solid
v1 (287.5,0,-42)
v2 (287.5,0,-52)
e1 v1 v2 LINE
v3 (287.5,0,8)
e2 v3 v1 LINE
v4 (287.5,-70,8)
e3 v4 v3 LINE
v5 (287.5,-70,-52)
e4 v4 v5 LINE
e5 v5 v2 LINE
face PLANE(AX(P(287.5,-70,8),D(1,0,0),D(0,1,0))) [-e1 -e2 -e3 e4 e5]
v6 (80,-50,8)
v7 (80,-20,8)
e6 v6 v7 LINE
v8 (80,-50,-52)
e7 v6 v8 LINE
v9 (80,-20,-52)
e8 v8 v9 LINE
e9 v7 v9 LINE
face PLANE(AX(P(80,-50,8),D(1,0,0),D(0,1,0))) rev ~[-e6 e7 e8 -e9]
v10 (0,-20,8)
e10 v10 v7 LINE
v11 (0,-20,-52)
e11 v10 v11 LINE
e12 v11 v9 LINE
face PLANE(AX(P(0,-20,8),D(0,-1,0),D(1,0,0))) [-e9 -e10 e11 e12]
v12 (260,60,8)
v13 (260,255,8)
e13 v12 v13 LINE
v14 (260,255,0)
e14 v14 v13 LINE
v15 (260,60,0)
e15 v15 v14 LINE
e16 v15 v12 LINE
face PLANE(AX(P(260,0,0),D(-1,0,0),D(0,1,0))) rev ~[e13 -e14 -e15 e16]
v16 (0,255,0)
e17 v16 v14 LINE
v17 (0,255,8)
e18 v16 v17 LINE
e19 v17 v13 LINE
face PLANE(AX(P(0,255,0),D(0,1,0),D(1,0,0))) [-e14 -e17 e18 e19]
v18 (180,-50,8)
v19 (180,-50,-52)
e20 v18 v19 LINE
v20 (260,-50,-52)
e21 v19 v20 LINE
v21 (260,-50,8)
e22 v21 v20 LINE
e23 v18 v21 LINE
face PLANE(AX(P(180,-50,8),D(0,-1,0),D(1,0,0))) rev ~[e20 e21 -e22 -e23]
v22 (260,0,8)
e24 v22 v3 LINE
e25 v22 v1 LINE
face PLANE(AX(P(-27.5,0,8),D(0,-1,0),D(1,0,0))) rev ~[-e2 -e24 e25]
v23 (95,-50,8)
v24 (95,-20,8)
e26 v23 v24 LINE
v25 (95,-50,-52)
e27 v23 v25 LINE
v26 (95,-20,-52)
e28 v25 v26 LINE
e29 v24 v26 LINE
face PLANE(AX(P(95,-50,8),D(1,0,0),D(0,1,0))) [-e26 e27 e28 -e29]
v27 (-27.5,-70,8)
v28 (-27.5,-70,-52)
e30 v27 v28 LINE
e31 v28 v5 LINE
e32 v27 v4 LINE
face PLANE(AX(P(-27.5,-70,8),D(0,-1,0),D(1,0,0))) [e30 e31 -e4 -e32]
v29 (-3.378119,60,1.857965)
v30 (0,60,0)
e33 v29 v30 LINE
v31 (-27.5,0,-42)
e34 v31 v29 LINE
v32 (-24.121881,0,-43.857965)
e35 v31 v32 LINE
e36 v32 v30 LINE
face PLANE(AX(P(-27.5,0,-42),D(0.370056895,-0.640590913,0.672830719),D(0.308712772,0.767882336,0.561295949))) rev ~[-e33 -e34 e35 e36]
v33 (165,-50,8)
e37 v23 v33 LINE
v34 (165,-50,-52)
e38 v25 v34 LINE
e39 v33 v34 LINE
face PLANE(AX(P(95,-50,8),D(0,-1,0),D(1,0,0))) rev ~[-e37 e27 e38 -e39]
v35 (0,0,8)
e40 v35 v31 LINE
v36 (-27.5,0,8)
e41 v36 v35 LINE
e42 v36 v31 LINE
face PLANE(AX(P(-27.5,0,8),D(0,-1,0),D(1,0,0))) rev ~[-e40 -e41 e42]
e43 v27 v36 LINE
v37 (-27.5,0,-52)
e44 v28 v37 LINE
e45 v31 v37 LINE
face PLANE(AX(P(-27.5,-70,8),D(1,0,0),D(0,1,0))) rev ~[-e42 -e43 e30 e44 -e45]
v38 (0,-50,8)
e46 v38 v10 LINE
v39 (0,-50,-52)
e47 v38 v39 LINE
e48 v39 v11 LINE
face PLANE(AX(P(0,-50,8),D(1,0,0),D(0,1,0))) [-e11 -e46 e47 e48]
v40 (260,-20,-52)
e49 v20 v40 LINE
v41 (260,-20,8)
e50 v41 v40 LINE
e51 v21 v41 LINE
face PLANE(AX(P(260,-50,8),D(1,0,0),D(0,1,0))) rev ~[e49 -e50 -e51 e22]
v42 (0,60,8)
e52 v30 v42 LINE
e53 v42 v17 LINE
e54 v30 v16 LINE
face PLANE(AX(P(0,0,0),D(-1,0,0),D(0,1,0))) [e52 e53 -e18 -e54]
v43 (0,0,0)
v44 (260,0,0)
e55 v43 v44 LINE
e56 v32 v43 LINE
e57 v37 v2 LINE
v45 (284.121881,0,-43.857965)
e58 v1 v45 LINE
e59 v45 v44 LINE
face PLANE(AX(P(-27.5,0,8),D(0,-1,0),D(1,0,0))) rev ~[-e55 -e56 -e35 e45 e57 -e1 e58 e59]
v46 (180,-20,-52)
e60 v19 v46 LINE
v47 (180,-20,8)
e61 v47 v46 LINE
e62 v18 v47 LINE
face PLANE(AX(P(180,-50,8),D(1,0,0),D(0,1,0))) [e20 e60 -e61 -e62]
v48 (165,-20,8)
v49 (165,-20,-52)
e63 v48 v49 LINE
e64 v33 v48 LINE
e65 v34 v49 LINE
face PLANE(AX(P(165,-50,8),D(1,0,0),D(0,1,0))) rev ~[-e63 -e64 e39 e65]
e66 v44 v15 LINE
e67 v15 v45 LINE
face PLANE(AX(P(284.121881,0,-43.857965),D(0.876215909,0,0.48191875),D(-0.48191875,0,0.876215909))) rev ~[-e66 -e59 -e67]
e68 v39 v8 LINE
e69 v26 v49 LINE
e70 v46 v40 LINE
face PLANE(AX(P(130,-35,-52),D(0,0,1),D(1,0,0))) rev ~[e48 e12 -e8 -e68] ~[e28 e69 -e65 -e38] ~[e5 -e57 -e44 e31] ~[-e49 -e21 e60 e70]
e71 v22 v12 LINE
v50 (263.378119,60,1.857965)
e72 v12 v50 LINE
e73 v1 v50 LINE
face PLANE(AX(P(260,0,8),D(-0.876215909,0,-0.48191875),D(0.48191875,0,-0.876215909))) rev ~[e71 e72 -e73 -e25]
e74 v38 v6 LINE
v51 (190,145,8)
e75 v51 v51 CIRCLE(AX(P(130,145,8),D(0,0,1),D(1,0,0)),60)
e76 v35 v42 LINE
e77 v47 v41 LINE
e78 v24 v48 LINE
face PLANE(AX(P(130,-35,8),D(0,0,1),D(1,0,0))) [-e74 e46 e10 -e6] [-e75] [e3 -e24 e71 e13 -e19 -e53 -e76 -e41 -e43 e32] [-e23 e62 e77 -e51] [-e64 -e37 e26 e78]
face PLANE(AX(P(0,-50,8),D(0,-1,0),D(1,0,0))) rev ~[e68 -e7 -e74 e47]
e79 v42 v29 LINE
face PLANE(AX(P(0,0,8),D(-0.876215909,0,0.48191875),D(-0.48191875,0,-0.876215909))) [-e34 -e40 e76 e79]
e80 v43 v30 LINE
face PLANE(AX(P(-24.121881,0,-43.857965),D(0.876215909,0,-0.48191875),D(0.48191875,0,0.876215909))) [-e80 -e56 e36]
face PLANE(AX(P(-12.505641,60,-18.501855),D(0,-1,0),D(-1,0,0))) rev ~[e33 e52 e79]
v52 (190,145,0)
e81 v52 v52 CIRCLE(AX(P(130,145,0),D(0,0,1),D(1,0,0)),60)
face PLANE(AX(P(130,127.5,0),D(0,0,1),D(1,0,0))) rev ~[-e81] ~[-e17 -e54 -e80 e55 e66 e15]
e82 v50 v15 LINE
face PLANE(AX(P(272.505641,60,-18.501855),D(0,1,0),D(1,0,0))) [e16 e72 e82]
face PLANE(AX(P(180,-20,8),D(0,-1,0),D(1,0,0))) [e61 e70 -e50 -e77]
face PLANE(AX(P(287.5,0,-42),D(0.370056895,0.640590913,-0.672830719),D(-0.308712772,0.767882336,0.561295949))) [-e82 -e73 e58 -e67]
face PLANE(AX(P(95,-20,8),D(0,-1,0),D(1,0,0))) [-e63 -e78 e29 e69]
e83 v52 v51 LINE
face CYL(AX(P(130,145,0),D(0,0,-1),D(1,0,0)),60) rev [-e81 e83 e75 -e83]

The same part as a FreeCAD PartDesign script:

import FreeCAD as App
import Part
import Sketcher

doc = App.newDocument("Part")
body = doc.addObject("PartDesign::Body", "Body")

sketch1 = body.newObject("Sketcher::SketchObject", "Sketch")
sketch1.AttachmentSupport = (doc.getObject("XY_Plane"), [""])
sketch1.MapMode = "FlatFace"
sketch1.addGeometry([
    Part.LineSegment(App.Vector(0, 255, 0), App.Vector(0, 0, 0)),
    Part.LineSegment(App.Vector(0, 0, 0), App.Vector(260, 0, 0)),
    Part.LineSegment(App.Vector(260, 0, 0), App.Vector(260, 255, 0)),
    Part.LineSegment(App.Vector(260, 255, 0), App.Vector(0, 255, 0)),
    Part.Circle(App.Vector(130, 145, 0), App.Vector(0, 0, 1), 60),
], False)
sketch1.addConstraint([
    Sketcher.Constraint("Coincident", 0, 2, 1, 1),
    Sketcher.Constraint("Coincident", 1, 2, 2, 1),
    Sketcher.Constraint("Coincident", 2, 2, 3, 1),
    Sketcher.Constraint("Coincident", 3, 2, 0, 1),
    Sketcher.Constraint("Vertical", 0),
    Sketcher.Constraint("Horizontal", 1),
    Sketcher.Constraint("Vertical", 2),
    Sketcher.Constraint("Horizontal", 3),
    Sketcher.Constraint("Coincident", 0, 2, -1, 1),
    Sketcher.Constraint("Diameter", 4, 120.0),
    Sketcher.Constraint("DistanceX", 1, 1, 1, 2, 260.0),
    Sketcher.Constraint("DistanceY", 0, 2, 0, 1, 255.0),
    Sketcher.Constraint("DistanceX", -1, 1, 4, 3, 130.0),
    Sketcher.Constraint("DistanceY", -1, 1, 4, 3, 145.0),
])
pad1 = body.newObject("PartDesign::Pad", "Pad")
pad1.Profile = sketch1
pad1.Length = 8

sketch2 = body.newObject("Sketcher::SketchObject", "Sketch001")
sketch2.AttachmentSupport = (doc.getObject("XY_Plane"), [""])
sketch2.MapMode = "FlatFace"
sketch2.AttachmentOffset = App.Placement(App.Vector(0, 0, 8), App.Rotation())
sketch2.addGeometry([
    Part.LineSegment(App.Vector(-28, 0, 0), App.Vector(-28, -70, 0)),
    Part.LineSegment(App.Vector(-28, -70, 0), App.Vector(288, -70, 0)),
    Part.LineSegment(App.Vector(288, -70, 0), App.Vector(288, 0, 0)),
    Part.LineSegment(App.Vector(288, 0, 0), App.Vector(-28, 0, 0)),
    Part.LineSegment(App.Vector(80, -50, 0), App.Vector(0, -50, 0)),
    Part.LineSegment(App.Vector(0, -50, 0), App.Vector(0, -20, 0)),
    Part.LineSegment(App.Vector(0, -20, 0), App.Vector(80, -20, 0)),
    Part.LineSegment(App.Vector(80, -20, 0), App.Vector(80, -50, 0)),
    Part.LineSegment(App.Vector(165, -50, 0), App.Vector(95, -50, 0)),
    Part.LineSegment(App.Vector(95, -50, 0), App.Vector(95, -20, 0)),
    Part.LineSegment(App.Vector(95, -20, 0), App.Vector(165, -20, 0)),
    Part.LineSegment(App.Vector(165, -20, 0), App.Vector(165, -50, 0)),
    Part.LineSegment(App.Vector(260, -50, 0), App.Vector(180, -50, 0)),
    Part.LineSegment(App.Vector(180, -50, 0), App.Vector(180, -20, 0)),
    Part.LineSegment(App.Vector(180, -20, 0), App.Vector(260, -20, 0)),
    Part.LineSegment(App.Vector(260, -20, 0), App.Vector(260, -50, 0)),
], False)
sketch2.addConstraint([
    Sketcher.Constraint("Coincident", 0, 2, 1, 1),
    Sketcher.Constraint("Coincident", 1, 2, 2, 1),
    Sketcher.Constraint("Coincident", 2, 2, 3, 1),
    Sketcher.Constraint("Coincident", 3, 2, 0, 1),
    Sketcher.Constraint("Coincident", 4, 2, 5, 1),
    Sketcher.Constraint("Coincident", 5, 2, 6, 1),
    Sketcher.Constraint("Coincident", 6, 2, 7, 1),
    Sketcher.Constraint("Coincident", 7, 2, 4, 1),
    Sketcher.Constraint("Coincident", 8, 2, 9, 1),
    Sketcher.Constraint("Coincident", 9, 2, 10, 1),
    Sketcher.Constraint("Coincident", 10, 2, 11, 1),
    Sketcher.Constraint("Coincident", 11, 2, 8, 1),
    Sketcher.Constraint("Coincident", 12, 2, 13, 1),
    Sketcher.Constraint("Coincident", 13, 2, 14, 1),
    Sketcher.Constraint("Coincident", 14, 2, 15, 1),
    Sketcher.Constraint("Coincident", 15, 2, 12, 1),
    Sketcher.Constraint("Vertical", 0),
    Sketcher.Constraint("Horizontal", 1),
    Sketcher.Constraint("Vertical", 2),
    Sketcher.Constraint("Horizontal", 3),
    Sketcher.Constraint("Horizontal", 4),
    Sketcher.Constraint("Vertical", 5),
    Sketcher.Constraint("Horizontal", 6),
    Sketcher.Constraint("Vertical", 7),
    Sketcher.Constraint("Horizontal", 8),
    Sketcher.Constraint("Vertical", 9),
    Sketcher.Constraint("Horizontal", 10),
    Sketcher.Constraint("Vertical", 11),
    Sketcher.Constraint("Horizontal", 12),
    Sketcher.Constraint("Vertical", 13),
    Sketcher.Constraint("Horizontal", 14),
    Sketcher.Constraint("Vertical", 15),
    Sketcher.Constraint("PointOnObject", 2, 2, -1),
    Sketcher.Constraint("PointOnObject", 4, 2, -2),
    Sketcher.Constraint("Horizontal", 7, 2, 8, 2),
    Sketcher.Constraint("Horizontal", 6, 2, 9, 2),
    Sketcher.Constraint("Horizontal", 11, 2, 12, 2),
    Sketcher.Constraint("Horizontal", 10, 2, 13, 2),
    Sketcher.Constraint("Equal", 6, 12),
    Sketcher.Constraint("Equal", 10, 0),
    Sketcher.Constraint("DistanceX", 1, 1, 1, 2, 315.0),
    Sketcher.Constraint("DistanceX", 4, 2, 4, 1, 80.0),
    Sketcher.Constraint("DistanceX", 8, 2, 8, 1, 70.0),
    Sketcher.Constraint("DistanceY", 5, 1, 5, 2, 30.0),
    Sketcher.Constraint("DistanceY", 4, 2, -1, 1, 50.0),
    Sketcher.Constraint("DistanceX", -1, 1, 8, 2, 95.0),
    Sketcher.Constraint("DistanceX", -1, 1, 12, 2, 180.0),
    Sketcher.Constraint("DistanceX", 0, 2, -1, 1, 27.5),
])
pad2 = body.newObject("PartDesign::Pad", "Pad001")
pad2.Profile = sketch2
pad2.Length = 60
pad2.Reversed = True

sketch3 = body.newObject("Sketcher::SketchObject", "Sketch002")
sketch3.AttachmentSupport = (doc.getObject("XZ_Plane"), [""])
sketch3.MapMode = "FlatFace"
sketch3.addGeometry([
    Part.LineSegment(App.Vector(260, 8, 0), App.Vector(287.5, -42, 0)),
    Part.LineSegment(App.Vector(287.5, -42, 0), App.Vector(284.1, -43.9, 0)),
    Part.LineSegment(App.Vector(284.1, -43.9, 0), App.Vector(260, 0, 0)),
    Part.LineSegment(App.Vector(260, 0, 0), App.Vector(260, 8, 0)),
    Part.LineSegment(App.Vector(-27.5, -42, 0), App.Vector(0, 8, 0)),
    Part.LineSegment(App.Vector(0, 8, 0), App.Vector(0, 0, 0)),
    Part.LineSegment(App.Vector(0, 0, 0), App.Vector(-24.1, -43.9, 0)),
    Part.LineSegment(App.Vector(-24.1, -43.9, 0), App.Vector(-27.5, -42, 0)),
], False)
sketch3.addConstraint([
    Sketcher.Constraint("Coincident", 0, 2, 1, 1),
    Sketcher.Constraint("Coincident", 1, 2, 2, 1),
    Sketcher.Constraint("Coincident", 2, 2, 3, 1),
    Sketcher.Constraint("Coincident", 3, 2, 0, 1),
    Sketcher.Constraint("Coincident", 4, 2, 5, 1),
    Sketcher.Constraint("Coincident", 5, 2, 6, 1),
    Sketcher.Constraint("Coincident", 6, 2, 7, 1),
    Sketcher.Constraint("Coincident", 7, 2, 4, 1),
    Sketcher.Constraint("Vertical", 3),
    Sketcher.Constraint("Vertical", 5),
    Sketcher.Constraint("Coincident", 5, 2, -1, 1),
    Sketcher.Constraint("PointOnObject", 2, 2, -1),
    Sketcher.Constraint("Perpendicular", 0, 1),
    Sketcher.Constraint("Perpendicular", 1, 2),
    Sketcher.Constraint("Parallel", 4, 6),
    Sketcher.Constraint("Perpendicular", 6, 7),
    Sketcher.Constraint("Horizontal", 3, 2, 4, 2),
    Sketcher.Constraint("Horizontal", 1, 2, 6, 2),
    Sketcher.Constraint("Horizontal", 0, 2, 7, 2),
    Sketcher.Constraint("DistanceY", 3, 1, 3, 2, 8.0),
    Sketcher.Constraint("DistanceY", 0, 2, -1, 1, 42.0),
    Sketcher.Constraint("DistanceX", -1, 1, 2, 2, 260.0),
    Sketcher.Constraint("DistanceX", -1, 1, 0, 2, 287.5),
])
pad3 = body.newObject("PartDesign::Pad", "Pad002")
pad3.Profile = sketch3
pad3.Length = 60
pad3.Reversed = True

sketch4 = body.newObject("Sketcher::SketchObject", "Sketch003")
sketch4.Placement = App.Placement(App.Vector(202.994242, 0, 111.646833), App.Rotation(App.Vector(0.48191875, 0, -0.876215909), App.Vector(0, 1.000000001, 0), App.Vector(0.876215909, 0, 0.48191875), "ZXY"))
sketch4.addGeometry([
    Part.LineSegment(App.Vector(125, 60, 0), App.Vector(175, 0, 0)),
    Part.LineSegment(App.Vector(175, 0, 0), App.Vector(175, 60, 0)),
    Part.LineSegment(App.Vector(175, 60, 0), App.Vector(125, 60, 0)),
], False)
sketch4.addConstraint([
    Sketcher.Constraint("Coincident", 0, 2, 1, 1),
    Sketcher.Constraint("Coincident", 1, 2, 2, 1),
    Sketcher.Constraint("Coincident", 2, 2, 0, 1),
    Sketcher.Constraint("Vertical", 1),
    Sketcher.Constraint("Horizontal", 2),
    Sketcher.Constraint("PointOnObject", 0, 2, -1),
    Sketcher.Constraint("DistanceY", 1, 1, 1, 2, 60.0),
    Sketcher.Constraint("Distance", 0, 78.136971),
    Sketcher.Constraint("DistanceX", -1, 1, 0, 2, 175.352709),
])
pocket1 = body.newObject("PartDesign::Pocket", "Pocket")
pocket1.Profile = sketch4
pocket1.Type = "UpToFirst"

sketch5 = body.newObject("Sketcher::SketchObject", "Sketch004")
sketch5.Placement = App.Placement(App.Vector(-3.378119, 0, 1.857965), App.Rotation(App.Vector(0.48191875, 0, 0.876215909), App.Vector(0, 1.000000001, 0), App.Vector(-0.876215909, 0, 0.48191875), "ZXY"))
sketch5.addGeometry([
    Part.LineSegment(App.Vector(-50, 0, 0), App.Vector(0, 60, 0)),
    Part.LineSegment(App.Vector(0, 60, 0), App.Vector(-50, 60, 0)),
    Part.LineSegment(App.Vector(-50, 60, 0), App.Vector(-50, 0, 0)),
], False)
sketch5.addConstraint([
    Sketcher.Constraint("Coincident", 0, 2, 1, 1),
    Sketcher.Constraint("Coincident", 1, 2, 2, 1),
    Sketcher.Constraint("Coincident", 2, 2, 0, 1),
    Sketcher.Constraint("Horizontal", 1),
    Sketcher.Constraint("Vertical", 2),
    Sketcher.Constraint("PointOnObject", 0, 2, -2),
    Sketcher.Constraint("PointOnObject", 2, 2, -1),
    Sketcher.Constraint("DistanceY", 2, 2, 2, 1, 60.0),
    Sketcher.Constraint("Distance", 0, 78.136971),
])
pocket2 = body.newObject("PartDesign::Pocket", "Pocket001")
pocket2.Profile = sketch5
pocket2.Type = "UpToFirst"

doc.recompute()
